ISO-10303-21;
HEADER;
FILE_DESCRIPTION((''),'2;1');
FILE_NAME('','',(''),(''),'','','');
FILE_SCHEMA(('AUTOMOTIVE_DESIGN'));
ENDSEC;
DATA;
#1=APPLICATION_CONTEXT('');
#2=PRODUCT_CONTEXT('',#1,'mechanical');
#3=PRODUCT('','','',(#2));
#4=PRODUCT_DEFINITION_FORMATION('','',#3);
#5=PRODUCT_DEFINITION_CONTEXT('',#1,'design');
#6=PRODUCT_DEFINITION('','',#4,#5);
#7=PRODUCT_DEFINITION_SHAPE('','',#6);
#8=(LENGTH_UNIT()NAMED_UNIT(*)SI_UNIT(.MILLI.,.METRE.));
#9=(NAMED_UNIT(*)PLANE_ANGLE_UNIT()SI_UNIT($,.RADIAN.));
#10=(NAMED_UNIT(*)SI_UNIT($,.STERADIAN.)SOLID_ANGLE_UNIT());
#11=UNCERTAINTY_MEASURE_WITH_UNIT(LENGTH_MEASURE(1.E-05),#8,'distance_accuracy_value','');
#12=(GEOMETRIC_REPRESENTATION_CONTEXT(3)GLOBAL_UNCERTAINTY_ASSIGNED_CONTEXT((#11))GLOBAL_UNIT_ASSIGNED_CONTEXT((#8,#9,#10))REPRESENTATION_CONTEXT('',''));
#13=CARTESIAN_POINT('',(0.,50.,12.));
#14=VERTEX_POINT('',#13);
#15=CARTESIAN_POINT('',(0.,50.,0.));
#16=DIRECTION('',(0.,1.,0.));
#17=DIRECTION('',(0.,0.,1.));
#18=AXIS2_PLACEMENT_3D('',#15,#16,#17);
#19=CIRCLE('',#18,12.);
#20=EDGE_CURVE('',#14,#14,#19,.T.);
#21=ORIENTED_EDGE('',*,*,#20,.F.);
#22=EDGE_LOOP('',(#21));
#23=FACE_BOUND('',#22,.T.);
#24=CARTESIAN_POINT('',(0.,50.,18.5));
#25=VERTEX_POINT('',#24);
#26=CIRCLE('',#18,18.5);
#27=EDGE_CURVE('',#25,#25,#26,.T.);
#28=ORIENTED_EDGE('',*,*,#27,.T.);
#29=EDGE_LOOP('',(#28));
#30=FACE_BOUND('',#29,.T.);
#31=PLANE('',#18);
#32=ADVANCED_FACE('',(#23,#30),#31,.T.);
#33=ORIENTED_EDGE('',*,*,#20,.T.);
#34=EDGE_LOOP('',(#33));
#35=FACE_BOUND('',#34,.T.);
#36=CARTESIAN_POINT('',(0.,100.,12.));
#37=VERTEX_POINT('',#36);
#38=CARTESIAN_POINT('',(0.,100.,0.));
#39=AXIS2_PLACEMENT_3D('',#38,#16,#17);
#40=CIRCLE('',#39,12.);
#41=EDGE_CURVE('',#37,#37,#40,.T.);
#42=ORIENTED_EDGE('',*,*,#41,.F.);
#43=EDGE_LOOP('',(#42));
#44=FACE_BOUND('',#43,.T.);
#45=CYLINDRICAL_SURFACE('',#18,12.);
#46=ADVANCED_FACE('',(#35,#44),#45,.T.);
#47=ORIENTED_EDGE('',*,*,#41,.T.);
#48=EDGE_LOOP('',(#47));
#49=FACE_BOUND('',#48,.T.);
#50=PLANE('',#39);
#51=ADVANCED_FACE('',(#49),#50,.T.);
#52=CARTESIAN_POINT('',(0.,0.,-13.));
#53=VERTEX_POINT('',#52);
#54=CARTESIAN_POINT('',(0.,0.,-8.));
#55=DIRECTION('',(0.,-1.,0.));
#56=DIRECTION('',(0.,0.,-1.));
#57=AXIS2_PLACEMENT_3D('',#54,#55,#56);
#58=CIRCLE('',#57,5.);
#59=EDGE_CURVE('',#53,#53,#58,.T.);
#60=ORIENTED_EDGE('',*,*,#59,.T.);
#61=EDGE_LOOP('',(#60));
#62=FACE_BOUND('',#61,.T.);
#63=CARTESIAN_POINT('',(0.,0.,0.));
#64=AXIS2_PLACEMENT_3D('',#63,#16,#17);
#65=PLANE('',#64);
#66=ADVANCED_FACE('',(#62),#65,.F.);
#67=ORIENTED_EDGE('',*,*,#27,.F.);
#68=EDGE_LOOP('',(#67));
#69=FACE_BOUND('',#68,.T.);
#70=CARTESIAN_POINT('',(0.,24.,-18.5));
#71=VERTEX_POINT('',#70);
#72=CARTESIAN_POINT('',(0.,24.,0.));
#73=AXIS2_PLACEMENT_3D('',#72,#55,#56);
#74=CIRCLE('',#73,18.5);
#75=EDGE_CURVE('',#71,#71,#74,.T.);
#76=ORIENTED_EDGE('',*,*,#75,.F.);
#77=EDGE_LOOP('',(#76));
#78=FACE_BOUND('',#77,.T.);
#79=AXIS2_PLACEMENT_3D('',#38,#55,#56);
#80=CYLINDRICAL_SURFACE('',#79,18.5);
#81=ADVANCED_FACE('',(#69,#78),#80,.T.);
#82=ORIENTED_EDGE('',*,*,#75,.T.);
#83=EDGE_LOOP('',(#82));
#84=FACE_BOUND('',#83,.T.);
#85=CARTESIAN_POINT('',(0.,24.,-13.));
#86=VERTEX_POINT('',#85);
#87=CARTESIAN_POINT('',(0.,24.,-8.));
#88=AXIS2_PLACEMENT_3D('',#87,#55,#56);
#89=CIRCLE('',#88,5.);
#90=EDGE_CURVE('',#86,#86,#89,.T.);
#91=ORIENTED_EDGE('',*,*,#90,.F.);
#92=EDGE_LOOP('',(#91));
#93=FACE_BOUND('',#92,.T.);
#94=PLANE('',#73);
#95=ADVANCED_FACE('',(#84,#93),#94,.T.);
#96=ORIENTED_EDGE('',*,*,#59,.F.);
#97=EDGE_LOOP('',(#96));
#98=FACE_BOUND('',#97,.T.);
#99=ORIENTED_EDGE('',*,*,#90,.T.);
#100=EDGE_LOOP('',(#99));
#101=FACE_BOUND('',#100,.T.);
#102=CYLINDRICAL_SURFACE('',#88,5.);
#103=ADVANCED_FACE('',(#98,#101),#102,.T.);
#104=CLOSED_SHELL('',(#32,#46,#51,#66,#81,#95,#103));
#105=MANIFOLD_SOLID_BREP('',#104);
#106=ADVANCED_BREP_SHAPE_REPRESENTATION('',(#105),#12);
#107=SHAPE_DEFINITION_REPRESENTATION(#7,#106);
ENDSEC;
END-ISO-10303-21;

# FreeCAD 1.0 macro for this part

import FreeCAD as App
import Part
import Sketcher
from FreeCAD import Vector

doc = App.newDocument("Part")
params = doc.addObject("Spreadsheet::Sheet", "Params")
for row, (alias, value) in enumerate([
    ("sketch1_diameter", "37 mm"),
    ("pad1_length", "100 mm"),
    ("sketch2_diameter", "37 mm"),
    ("sketch2_diameter2", "24 mm"),
    ("pocket1_length", "50 mm"),
    ("sketch3_diameter", "37 mm"),
    ("sketch3_diameter2", "10 mm"),
    ("pocket2_length", "24 mm"),
], start=1):
    params.set(f"A{row}", alias)
    params.set(f"B{row}", "=" + value)
    params.setAlias(f"B{row}", alias)

body = doc.addObject("PartDesign::Body", "Body")

# Sketch on XZ plane
sketch1 = body.newObject("Sketcher::SketchObject", "Sketch")
sketch1.AttachmentSupport = (doc.getObject("XZ_Plane"), [""])
sketch1.MapMode = "FlatFace"
sketch1.addGeometry(Part.Circle(Vector(0, 0, 0), Vector(0, 0, 1), 18.5), False)
sketch1.addConstraint(Sketcher.Constraint("Coincident", 0, 3, -1, 1))
sketch1.addConstraint(Sketcher.Constraint("Diameter", 0, 37.0))
sketch1.setExpression("Constraints[1]", "Params.sketch1_diameter")
pad1 = body.newObject("PartDesign::Pad", "Pad")
pad1.Profile = sketch1
pad1.setExpression("Length", "Params.pad1_length")
pad1.Reversed = True

# Sketch on XZ plane
sketch2 = body.newObject("Sketcher::SketchObject", "Sketch001")
sketch2.AttachmentSupport = (doc.getObject("XZ_Plane"), [""])
sketch2.MapMode = "FlatFace"
sketch2.AttachmentOffset = App.Placement(Vector(0, 0, -50), App.Rotation())
sketch2.addGeometry(Part.Circle(Vector(0, 0, 0), Vector(0, 0, 1), 18.5), False)
sketch2.addGeometry(Part.Circle(Vector(0, 0, 0), Vector(0, 0, 1), 12), False)
sketch2.addConstraint(Sketcher.Constraint("Coincident", 0, 3, -1, 1))
sketch2.addConstraint(Sketcher.Constraint("Coincident", 1, 3, -1, 1))
sketch2.addConstraint(Sketcher.Constraint("Diameter", 0, 37.0))
sketch2.addConstraint(Sketcher.Constraint("Diameter", 1, 24.0))
sketch2.setExpression("Constraints[2]", "Params.sketch2_diameter")
sketch2.setExpression("Constraints[3]", "Params.sketch2_diameter2")
pocket1 = body.newObject("PartDesign::Pocket", "Pocket")
pocket1.Profile = sketch2
pocket1.setExpression("Length", "Params.pocket1_length")

# Sketch on XZ plane
sketch3 = body.newObject("Sketcher::SketchObject", "Sketch002")
sketch3.AttachmentSupport = (doc.getObject("XZ_Plane"), [""])
sketch3.MapMode = "FlatFace"
sketch3.addGeometry(Part.Circle(Vector(0, 0, 0), Vector(0, 0, 1), 18.5), False)
sketch3.addGeometry(Part.Circle(Vector(0, -8, 0), Vector(0, 0, 1), 5), False)
sketch3.addConstraint(Sketcher.Constraint("Coincident", 0, 3, -1, 1))
sketch3.addConstraint(Sketcher.Constraint("PointOnObject", 1, 3, -2))
sketch3.addConstraint(Sketcher.Constraint("Diameter", 0, 37.0))
sketch3.addConstraint(Sketcher.Constraint("Diameter", 1, 10.0))
sketch3.addConstraint(Sketcher.Constraint("DistanceY", 1, 3, -1, 1, 8.0))
sketch3.setExpression("Constraints[2]", "Params.sketch3_diameter")
sketch3.setExpression("Constraints[3]", "Params.sketch3_diameter2")
pocket2 = body.newObject("PartDesign::Pocket", "Pocket001")
pocket2.Profile = sketch3
pocket2.setExpression("Length", "Params.pocket2_length")

doc.recompute()
